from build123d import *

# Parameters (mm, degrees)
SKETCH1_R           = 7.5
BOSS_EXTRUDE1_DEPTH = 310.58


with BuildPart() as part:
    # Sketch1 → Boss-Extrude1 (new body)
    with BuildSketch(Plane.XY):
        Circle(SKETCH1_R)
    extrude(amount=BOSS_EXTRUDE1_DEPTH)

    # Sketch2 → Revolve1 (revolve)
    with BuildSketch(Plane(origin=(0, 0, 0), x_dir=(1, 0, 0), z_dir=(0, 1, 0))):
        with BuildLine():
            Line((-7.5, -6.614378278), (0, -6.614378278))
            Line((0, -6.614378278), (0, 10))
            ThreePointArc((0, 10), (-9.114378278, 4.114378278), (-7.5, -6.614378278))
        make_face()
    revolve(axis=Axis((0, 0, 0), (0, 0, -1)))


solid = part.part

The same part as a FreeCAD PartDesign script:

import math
import FreeCAD as App
import Part
import Sketcher

V = App.Vector

doc = App.newDocument("Part")
params = doc.addObject("Spreadsheet::Sheet", "Params")
for row, (alias, value) in enumerate([
    ("sketch1_diameter", "15 mm"),
    ("pad1_length", "310.58 mm"),
    ("sketch2_radius", "10 mm"),
    ("sketch2_width", "7.5 mm"),
    ("revolution_angle", "360 deg"),
], start=1):
    params.set(f"A{row}", alias)
    params.set(f"B{row}", "=" + value)
    params.setAlias(f"B{row}", alias)

body = doc.addObject("PartDesign::Body", "Body")

sketch1 = body.newObject("Sketcher::SketchObject", "Sketch")
sketch1.AttachmentSupport = (doc.getObject("XY_Plane"), [""])
sketch1.MapMode = "FlatFace"
sketch1.addGeometry(Part.Circle(V(0, 0, 0), V(0, 0, 1), 7.5), False)
sketch1.addConstraint(Sketcher.Constraint("Coincident", 0, 3, -1, 1))
sketch1.addConstraint(Sketcher.Constraint("Diameter", 0, 15.0))
sketch1.setExpression("Constraints[1]", "Params.sketch1_diameter")
pad1 = body.newObject("PartDesign::Pad", "Pad")
pad1.Profile = sketch1
pad1.setExpression("Length", "Params.pad1_length")

sketch2 = body.newObject("Sketcher::SketchObject", "Sketch001")
sketch2.AttachmentSupport = (doc.getObject("XZ_Plane"), [""])
sketch2.MapMode = "FlatFace"
sketch2.addGeometry(Part.LineSegment(V(-7.5, 6.614378, 0), V(0, 6.614378, 0)), False)
sketch2.addGeometry(Part.LineSegment(V(0, 6.614378, 0), V(0, -10, 0)), False)
sketch2.addGeometry(Part.ArcOfCircle(Part.Circle(V(0, 0, 0), V(0, 0, 1), 10), math.radians(138.590378), math.radians(270)), False)
sketch2.addConstraint(Sketcher.Constraint("Coincident", 0, 2, 1, 1))
sketch2.addConstraint(Sketcher.Constraint("Coincident", 1, 2, 2, 2))
sketch2.addConstraint(Sketcher.Constraint("Coincident", 2, 1, 0, 1))
sketch2.addConstraint(Sketcher.Constraint("Horizontal", 0))
sketch2.addConstraint(Sketcher.Constraint("Vertical", 1))
sketch2.addConstraint(Sketcher.Constraint("Coincident", 2, 3, -1, 1))
sketch2.addConstraint(Sketcher.Constraint("PointOnObject", 0, 2, -2))
sketch2.addConstraint(Sketcher.Constraint("Radius", 2, 10.0))
sketch2.addConstraint(Sketcher.Constraint("DistanceX", 0, 1, 0, 2, 7.5))
sketch2.setExpression("Constraints[7]", "Params.sketch2_radius")
sketch2.setExpression("Constraints[8]", "Params.sketch2_width")
revolution = body.newObject("PartDesign::Revolution", "Revolution")
revolution.Profile = sketch2
revolution.ReferenceAxis = (sketch2, ["V_Axis"])
revolution.setExpression("Angle", "Params.revolution_angle")

doc.recompute()
